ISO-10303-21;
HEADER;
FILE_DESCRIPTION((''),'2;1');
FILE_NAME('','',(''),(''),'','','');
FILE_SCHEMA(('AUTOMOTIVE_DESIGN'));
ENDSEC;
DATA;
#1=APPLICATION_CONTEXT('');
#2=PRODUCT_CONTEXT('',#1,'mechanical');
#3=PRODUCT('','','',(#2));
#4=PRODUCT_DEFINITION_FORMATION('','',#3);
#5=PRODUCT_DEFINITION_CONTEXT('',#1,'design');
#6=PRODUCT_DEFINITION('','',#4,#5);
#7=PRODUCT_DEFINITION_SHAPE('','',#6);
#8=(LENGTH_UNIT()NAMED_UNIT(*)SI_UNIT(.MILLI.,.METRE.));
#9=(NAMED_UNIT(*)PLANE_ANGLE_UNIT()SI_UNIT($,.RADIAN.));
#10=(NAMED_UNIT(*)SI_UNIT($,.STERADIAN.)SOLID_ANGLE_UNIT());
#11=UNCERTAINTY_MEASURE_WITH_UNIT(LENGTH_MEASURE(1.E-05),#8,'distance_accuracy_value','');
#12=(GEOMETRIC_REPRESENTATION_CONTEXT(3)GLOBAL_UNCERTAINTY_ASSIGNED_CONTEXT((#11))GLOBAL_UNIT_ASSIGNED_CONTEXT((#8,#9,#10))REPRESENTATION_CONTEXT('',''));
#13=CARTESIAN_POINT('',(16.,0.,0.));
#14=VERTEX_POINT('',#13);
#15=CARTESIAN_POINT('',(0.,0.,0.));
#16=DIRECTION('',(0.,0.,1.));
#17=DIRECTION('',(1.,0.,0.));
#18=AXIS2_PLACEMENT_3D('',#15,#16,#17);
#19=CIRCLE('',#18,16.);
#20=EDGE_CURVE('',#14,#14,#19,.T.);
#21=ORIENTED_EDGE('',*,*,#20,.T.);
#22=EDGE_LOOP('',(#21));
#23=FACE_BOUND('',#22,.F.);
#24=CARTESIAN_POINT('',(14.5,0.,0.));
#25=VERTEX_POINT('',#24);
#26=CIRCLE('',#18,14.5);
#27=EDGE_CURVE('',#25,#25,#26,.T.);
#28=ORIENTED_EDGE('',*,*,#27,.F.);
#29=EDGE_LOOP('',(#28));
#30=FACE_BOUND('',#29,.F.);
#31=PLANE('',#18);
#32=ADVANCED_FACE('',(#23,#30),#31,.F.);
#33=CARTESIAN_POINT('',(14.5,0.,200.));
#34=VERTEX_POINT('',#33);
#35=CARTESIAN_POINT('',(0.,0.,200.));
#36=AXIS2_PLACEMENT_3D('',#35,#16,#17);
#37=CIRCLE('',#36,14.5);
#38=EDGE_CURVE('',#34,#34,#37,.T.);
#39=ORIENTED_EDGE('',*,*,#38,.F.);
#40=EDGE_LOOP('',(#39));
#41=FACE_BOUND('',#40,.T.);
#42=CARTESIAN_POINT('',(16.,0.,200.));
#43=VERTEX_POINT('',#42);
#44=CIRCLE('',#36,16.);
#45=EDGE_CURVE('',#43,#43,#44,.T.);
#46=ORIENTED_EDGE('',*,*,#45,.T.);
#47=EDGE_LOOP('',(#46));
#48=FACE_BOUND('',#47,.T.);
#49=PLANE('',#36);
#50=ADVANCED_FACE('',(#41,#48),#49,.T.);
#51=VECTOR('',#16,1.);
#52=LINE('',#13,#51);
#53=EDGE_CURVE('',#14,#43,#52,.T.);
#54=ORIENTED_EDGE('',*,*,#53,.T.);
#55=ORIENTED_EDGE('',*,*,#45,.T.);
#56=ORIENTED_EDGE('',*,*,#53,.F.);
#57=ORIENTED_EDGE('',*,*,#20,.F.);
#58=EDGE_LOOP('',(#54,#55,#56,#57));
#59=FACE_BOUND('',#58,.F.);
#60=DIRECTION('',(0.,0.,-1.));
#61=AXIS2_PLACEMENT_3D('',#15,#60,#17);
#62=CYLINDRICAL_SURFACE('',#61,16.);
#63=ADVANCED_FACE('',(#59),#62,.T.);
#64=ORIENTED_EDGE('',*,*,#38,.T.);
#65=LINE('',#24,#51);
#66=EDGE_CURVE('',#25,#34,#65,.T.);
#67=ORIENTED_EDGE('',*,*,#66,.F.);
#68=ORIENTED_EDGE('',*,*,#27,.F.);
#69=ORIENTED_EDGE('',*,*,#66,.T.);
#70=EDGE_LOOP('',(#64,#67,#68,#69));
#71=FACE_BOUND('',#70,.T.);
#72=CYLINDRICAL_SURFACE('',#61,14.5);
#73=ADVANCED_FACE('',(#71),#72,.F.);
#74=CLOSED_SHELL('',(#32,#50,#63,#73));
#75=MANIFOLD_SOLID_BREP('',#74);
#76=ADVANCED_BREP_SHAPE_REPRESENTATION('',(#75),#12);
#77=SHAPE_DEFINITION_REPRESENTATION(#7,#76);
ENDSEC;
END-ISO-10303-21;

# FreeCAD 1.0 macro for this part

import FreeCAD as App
import Part
import Sketcher

doc = App.newDocument("Part")
body = doc.addObject("PartDesign::Body", "Body")

# Sketch on XY plane
sketch1 = body.newObject("Sketcher::SketchObject", "Sketch")
sketch1.AttachmentSupport = (doc.getObject("XY_Plane"), [""])
sketch1.MapMode = "FlatFace"
sketch1.addGeometry(Part.Circle(App.Vector(0, 0, 0), App.Vector(0, 0, 1), 16), False)
sketch1.addGeometry(Part.Circle(App.Vector(0, 0, 0), App.Vector(0, 0, 1), 14), False)
sketch1.addConstraint(Sketcher.Constraint("Coincident", 0, 3, -1, 1))
sketch1.addConstraint(Sketcher.Constraint("Coincident", 1, 3, -1, 1))
sketch1.addConstraint(Sketcher.Constraint("Diameter", 0, 32.0))
sketch1.addConstraint(Sketcher.Constraint("Diameter", 1, 29.0))
pad1 = body.newObject("PartDesign::Pad", "Pad")
pad1.Profile = sketch1
pad1.Length = 200

doc.recompute()
